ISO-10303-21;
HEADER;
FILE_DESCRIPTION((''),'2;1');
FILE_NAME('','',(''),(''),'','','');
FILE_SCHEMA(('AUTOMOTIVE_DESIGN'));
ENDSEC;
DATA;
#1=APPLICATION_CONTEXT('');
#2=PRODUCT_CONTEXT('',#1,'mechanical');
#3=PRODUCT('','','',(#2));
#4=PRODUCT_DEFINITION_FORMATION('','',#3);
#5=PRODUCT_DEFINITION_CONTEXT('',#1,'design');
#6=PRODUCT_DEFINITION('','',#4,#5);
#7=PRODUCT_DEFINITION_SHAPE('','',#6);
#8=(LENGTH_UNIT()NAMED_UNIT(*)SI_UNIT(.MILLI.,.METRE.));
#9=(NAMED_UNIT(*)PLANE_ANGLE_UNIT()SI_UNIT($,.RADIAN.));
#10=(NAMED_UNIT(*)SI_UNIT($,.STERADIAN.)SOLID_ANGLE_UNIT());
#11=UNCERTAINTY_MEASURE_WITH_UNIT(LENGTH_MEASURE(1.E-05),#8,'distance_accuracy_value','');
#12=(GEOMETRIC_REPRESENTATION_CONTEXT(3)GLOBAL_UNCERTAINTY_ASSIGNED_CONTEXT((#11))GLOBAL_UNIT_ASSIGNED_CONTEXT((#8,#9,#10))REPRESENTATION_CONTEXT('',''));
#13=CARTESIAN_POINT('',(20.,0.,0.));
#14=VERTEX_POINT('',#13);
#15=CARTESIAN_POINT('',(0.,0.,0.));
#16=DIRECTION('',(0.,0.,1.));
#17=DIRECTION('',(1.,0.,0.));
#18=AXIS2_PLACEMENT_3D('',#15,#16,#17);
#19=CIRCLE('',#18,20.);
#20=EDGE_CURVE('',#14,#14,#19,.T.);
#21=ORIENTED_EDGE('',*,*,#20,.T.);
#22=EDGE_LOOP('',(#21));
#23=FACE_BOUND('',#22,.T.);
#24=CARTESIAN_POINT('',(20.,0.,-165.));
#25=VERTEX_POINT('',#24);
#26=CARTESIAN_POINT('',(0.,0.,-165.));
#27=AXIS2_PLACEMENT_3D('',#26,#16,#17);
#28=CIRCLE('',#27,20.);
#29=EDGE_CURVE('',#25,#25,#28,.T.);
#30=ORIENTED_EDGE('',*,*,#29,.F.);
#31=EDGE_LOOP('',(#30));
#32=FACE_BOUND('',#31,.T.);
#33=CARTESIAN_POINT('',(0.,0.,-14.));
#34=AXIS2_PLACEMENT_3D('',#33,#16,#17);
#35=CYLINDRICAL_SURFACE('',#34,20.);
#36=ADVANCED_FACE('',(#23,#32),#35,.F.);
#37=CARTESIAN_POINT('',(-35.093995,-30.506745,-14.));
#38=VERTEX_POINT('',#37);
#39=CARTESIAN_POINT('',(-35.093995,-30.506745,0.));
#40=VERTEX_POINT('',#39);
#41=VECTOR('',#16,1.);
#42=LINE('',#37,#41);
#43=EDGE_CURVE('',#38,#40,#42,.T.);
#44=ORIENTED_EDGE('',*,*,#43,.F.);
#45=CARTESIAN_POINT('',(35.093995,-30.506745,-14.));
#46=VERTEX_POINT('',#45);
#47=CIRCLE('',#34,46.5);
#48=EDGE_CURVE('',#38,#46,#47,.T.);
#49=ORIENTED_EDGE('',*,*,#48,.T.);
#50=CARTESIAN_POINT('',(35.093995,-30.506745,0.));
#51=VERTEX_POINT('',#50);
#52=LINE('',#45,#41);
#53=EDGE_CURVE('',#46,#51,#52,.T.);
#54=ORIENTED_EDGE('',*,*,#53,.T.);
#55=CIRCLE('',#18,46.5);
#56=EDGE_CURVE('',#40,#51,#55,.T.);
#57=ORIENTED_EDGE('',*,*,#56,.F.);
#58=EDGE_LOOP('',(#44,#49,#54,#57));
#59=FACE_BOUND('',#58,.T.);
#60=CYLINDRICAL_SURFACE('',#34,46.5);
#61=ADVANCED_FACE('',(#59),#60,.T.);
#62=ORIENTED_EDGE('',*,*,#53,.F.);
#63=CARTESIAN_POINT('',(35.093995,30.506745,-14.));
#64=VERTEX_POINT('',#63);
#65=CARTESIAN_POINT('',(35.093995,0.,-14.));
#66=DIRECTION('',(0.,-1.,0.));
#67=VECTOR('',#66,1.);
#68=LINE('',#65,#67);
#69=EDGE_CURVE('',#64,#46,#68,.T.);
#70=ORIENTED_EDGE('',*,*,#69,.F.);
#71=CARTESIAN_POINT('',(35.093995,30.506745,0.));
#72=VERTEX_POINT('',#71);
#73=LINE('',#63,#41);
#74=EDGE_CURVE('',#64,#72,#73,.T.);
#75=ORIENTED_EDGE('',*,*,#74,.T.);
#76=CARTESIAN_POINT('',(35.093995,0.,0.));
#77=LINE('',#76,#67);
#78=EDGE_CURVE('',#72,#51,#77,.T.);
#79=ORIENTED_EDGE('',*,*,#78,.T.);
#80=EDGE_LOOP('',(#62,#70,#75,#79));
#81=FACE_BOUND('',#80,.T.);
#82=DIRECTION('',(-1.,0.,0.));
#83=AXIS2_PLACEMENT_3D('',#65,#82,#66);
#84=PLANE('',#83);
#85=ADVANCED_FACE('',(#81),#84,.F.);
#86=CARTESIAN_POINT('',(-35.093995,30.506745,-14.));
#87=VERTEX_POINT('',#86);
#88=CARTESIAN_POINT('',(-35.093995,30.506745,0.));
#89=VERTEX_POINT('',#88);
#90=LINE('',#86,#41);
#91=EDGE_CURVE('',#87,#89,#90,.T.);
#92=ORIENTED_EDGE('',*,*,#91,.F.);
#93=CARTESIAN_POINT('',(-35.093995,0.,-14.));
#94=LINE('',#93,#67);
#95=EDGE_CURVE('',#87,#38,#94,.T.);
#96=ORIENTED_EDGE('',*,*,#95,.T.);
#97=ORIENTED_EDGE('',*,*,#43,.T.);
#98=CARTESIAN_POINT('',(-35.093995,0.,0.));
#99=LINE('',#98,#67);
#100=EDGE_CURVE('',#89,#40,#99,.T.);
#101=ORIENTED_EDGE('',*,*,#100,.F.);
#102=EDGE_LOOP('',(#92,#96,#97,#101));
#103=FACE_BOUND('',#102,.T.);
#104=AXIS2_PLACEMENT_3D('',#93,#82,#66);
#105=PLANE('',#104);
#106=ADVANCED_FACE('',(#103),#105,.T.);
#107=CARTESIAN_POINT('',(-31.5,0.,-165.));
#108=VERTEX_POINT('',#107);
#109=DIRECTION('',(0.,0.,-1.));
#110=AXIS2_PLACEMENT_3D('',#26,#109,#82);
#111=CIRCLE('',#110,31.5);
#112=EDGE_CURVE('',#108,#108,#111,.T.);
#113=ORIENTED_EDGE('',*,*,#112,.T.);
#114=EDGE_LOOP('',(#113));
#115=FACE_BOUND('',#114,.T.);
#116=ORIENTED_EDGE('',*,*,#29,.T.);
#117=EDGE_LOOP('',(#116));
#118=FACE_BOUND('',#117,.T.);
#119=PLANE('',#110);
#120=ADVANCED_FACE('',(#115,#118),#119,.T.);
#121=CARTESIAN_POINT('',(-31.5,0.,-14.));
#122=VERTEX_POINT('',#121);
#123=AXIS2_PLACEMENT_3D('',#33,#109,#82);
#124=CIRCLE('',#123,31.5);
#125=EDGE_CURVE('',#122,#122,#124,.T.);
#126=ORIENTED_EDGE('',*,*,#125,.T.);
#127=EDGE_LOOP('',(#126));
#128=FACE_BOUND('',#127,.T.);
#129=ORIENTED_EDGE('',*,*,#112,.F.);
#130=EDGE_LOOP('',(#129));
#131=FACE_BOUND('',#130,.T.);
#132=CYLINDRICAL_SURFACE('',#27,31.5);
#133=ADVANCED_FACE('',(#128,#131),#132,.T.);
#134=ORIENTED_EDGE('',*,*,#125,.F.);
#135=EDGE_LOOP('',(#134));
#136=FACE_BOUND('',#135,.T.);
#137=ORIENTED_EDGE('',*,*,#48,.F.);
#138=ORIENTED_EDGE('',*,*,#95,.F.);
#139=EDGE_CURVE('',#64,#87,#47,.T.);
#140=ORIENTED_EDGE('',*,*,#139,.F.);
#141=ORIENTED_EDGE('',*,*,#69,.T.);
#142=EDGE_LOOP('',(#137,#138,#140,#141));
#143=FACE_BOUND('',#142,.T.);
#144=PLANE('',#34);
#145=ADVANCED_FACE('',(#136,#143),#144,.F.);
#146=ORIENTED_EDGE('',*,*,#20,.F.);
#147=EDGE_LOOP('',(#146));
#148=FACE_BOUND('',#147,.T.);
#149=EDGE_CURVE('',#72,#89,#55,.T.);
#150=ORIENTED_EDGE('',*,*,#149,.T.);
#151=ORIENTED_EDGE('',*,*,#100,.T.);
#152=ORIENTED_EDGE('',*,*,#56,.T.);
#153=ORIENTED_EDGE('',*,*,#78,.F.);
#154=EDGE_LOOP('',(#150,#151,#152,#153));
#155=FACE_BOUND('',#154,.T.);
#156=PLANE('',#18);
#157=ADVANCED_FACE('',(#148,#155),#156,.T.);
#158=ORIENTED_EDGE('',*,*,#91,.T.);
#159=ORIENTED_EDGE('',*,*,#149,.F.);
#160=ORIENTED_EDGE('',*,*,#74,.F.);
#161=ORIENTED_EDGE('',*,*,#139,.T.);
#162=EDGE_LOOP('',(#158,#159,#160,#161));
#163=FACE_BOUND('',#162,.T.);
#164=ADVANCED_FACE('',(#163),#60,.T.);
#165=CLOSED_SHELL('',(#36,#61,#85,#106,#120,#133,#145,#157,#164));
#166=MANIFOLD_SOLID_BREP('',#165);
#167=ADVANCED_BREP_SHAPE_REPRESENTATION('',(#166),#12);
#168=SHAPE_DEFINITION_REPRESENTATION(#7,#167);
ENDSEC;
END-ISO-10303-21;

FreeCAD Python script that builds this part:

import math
import FreeCAD as App
import Part
import Sketcher

doc = App.newDocument("Part")
body = doc.addObject("PartDesign::Body", "Body")

sketch1 = body.newObject("Sketcher::SketchObject", "Sketch")
sketch1.AttachmentSupport = (doc.getObject("XY_Plane"), [""])
sketch1.MapMode = "FlatFace"
sketch1.addGeometry([
    Part.LineSegment(App.Vector(-35, 31, 0), App.Vector(-35, -31, 0)),
    Part.ArcOfCircle(Part.Circle(App.Vector(0, 0, 0), App.Vector(0, 0, 1), 46), math.radians(-139), math.radians(-41)),
    Part.LineSegment(App.Vector(35, -31, 0), App.Vector(35, 31, 0)),
    Part.ArcOfCircle(Part.Circle(App.Vector(0, 0, 0), App.Vector(0, 0, 1), 46), math.radians(41), math.radians(139)),
    Part.Circle(App.Vector(0, 0, 0), App.Vector(0, 0, 1), 20),
], False)
sketch1.addConstraint([
    Sketcher.Constraint("Coincident", 0, 2, 1, 1),
    Sketcher.Constraint("Coincident", 1, 2, 2, 1),
    Sketcher.Constraint("Coincident", 2, 2, 3, 1),
    Sketcher.Constraint("Coincident", 3, 2, 0, 1),
    Sketcher.Constraint("Vertical", 0),
    Sketcher.Constraint("Vertical", 2),
    Sketcher.Constraint("Coincident", 1, 3, -1, 1),
    Sketcher.Constraint("Coincident", 3, 3, -1, 1),
    Sketcher.Constraint("Coincident", 4, 3, -1, 1),
    Sketcher.Constraint("Equal", 1, 3),
    Sketcher.Constraint("Horizontal", 0, 2, 1, 2),
    Sketcher.Constraint("Diameter", 4, 40.0),
    Sketcher.Constraint("Radius", 1, 46.5),
    Sketcher.Constraint("DistanceY", 0, 2, 0, 1, 61.01349),
])
pad1 = body.newObject("PartDesign::Pad", "Pad")
pad1.Profile = sketch1
pad1.Length = 14
pad1.Reversed = True

sketch2 = body.newObject("Sketcher::SketchObject", "Sketch001")
sketch2.AttachmentSupport = (doc.getObject("XY_Plane"), [""])
sketch2.MapMode = "FlatFace"
sketch2.AttachmentOffset = App.Placement(App.Vector(0, 0, -14), App.Rotation())
sketch2.addGeometry(Part.Circle(App.Vector(0, 0, 0), App.Vector(0, 0, 1), 32), False)
sketch2.addConstraint([
    Sketcher.Constraint("Coincident", 0, 3, -1, 1),
    Sketcher.Constraint("Diameter", 0, 63.0),
])
pad2 = body.newObject("PartDesign::Pad", "Pad001")
pad2.Profile = sketch2
pad2.Length = 151
pad2.Reversed = True

sketch3 = body.newObject("Sketcher::SketchObject", "Sketch002")
sketch3.AttachmentSupport = (doc.getObject("XY_Plane"), [""])
sketch3.MapMode = "FlatFace"
sketch3.addGeometry(Part.Circle(App.Vector(0, 0, 0), App.Vector(0, 0, 1), 20), False)
sketch3.addConstraint([
    Sketcher.Constraint("Coincident", 0, 3, -1, 1),
    Sketcher.Constraint("Diameter", 0, 40.0),
])
pocket1 = body.newObject("PartDesign::Pocket", "Pocket")
pocket1.Profile = sketch3
pocket1.Type = "ThroughAll"

doc.recompute()
